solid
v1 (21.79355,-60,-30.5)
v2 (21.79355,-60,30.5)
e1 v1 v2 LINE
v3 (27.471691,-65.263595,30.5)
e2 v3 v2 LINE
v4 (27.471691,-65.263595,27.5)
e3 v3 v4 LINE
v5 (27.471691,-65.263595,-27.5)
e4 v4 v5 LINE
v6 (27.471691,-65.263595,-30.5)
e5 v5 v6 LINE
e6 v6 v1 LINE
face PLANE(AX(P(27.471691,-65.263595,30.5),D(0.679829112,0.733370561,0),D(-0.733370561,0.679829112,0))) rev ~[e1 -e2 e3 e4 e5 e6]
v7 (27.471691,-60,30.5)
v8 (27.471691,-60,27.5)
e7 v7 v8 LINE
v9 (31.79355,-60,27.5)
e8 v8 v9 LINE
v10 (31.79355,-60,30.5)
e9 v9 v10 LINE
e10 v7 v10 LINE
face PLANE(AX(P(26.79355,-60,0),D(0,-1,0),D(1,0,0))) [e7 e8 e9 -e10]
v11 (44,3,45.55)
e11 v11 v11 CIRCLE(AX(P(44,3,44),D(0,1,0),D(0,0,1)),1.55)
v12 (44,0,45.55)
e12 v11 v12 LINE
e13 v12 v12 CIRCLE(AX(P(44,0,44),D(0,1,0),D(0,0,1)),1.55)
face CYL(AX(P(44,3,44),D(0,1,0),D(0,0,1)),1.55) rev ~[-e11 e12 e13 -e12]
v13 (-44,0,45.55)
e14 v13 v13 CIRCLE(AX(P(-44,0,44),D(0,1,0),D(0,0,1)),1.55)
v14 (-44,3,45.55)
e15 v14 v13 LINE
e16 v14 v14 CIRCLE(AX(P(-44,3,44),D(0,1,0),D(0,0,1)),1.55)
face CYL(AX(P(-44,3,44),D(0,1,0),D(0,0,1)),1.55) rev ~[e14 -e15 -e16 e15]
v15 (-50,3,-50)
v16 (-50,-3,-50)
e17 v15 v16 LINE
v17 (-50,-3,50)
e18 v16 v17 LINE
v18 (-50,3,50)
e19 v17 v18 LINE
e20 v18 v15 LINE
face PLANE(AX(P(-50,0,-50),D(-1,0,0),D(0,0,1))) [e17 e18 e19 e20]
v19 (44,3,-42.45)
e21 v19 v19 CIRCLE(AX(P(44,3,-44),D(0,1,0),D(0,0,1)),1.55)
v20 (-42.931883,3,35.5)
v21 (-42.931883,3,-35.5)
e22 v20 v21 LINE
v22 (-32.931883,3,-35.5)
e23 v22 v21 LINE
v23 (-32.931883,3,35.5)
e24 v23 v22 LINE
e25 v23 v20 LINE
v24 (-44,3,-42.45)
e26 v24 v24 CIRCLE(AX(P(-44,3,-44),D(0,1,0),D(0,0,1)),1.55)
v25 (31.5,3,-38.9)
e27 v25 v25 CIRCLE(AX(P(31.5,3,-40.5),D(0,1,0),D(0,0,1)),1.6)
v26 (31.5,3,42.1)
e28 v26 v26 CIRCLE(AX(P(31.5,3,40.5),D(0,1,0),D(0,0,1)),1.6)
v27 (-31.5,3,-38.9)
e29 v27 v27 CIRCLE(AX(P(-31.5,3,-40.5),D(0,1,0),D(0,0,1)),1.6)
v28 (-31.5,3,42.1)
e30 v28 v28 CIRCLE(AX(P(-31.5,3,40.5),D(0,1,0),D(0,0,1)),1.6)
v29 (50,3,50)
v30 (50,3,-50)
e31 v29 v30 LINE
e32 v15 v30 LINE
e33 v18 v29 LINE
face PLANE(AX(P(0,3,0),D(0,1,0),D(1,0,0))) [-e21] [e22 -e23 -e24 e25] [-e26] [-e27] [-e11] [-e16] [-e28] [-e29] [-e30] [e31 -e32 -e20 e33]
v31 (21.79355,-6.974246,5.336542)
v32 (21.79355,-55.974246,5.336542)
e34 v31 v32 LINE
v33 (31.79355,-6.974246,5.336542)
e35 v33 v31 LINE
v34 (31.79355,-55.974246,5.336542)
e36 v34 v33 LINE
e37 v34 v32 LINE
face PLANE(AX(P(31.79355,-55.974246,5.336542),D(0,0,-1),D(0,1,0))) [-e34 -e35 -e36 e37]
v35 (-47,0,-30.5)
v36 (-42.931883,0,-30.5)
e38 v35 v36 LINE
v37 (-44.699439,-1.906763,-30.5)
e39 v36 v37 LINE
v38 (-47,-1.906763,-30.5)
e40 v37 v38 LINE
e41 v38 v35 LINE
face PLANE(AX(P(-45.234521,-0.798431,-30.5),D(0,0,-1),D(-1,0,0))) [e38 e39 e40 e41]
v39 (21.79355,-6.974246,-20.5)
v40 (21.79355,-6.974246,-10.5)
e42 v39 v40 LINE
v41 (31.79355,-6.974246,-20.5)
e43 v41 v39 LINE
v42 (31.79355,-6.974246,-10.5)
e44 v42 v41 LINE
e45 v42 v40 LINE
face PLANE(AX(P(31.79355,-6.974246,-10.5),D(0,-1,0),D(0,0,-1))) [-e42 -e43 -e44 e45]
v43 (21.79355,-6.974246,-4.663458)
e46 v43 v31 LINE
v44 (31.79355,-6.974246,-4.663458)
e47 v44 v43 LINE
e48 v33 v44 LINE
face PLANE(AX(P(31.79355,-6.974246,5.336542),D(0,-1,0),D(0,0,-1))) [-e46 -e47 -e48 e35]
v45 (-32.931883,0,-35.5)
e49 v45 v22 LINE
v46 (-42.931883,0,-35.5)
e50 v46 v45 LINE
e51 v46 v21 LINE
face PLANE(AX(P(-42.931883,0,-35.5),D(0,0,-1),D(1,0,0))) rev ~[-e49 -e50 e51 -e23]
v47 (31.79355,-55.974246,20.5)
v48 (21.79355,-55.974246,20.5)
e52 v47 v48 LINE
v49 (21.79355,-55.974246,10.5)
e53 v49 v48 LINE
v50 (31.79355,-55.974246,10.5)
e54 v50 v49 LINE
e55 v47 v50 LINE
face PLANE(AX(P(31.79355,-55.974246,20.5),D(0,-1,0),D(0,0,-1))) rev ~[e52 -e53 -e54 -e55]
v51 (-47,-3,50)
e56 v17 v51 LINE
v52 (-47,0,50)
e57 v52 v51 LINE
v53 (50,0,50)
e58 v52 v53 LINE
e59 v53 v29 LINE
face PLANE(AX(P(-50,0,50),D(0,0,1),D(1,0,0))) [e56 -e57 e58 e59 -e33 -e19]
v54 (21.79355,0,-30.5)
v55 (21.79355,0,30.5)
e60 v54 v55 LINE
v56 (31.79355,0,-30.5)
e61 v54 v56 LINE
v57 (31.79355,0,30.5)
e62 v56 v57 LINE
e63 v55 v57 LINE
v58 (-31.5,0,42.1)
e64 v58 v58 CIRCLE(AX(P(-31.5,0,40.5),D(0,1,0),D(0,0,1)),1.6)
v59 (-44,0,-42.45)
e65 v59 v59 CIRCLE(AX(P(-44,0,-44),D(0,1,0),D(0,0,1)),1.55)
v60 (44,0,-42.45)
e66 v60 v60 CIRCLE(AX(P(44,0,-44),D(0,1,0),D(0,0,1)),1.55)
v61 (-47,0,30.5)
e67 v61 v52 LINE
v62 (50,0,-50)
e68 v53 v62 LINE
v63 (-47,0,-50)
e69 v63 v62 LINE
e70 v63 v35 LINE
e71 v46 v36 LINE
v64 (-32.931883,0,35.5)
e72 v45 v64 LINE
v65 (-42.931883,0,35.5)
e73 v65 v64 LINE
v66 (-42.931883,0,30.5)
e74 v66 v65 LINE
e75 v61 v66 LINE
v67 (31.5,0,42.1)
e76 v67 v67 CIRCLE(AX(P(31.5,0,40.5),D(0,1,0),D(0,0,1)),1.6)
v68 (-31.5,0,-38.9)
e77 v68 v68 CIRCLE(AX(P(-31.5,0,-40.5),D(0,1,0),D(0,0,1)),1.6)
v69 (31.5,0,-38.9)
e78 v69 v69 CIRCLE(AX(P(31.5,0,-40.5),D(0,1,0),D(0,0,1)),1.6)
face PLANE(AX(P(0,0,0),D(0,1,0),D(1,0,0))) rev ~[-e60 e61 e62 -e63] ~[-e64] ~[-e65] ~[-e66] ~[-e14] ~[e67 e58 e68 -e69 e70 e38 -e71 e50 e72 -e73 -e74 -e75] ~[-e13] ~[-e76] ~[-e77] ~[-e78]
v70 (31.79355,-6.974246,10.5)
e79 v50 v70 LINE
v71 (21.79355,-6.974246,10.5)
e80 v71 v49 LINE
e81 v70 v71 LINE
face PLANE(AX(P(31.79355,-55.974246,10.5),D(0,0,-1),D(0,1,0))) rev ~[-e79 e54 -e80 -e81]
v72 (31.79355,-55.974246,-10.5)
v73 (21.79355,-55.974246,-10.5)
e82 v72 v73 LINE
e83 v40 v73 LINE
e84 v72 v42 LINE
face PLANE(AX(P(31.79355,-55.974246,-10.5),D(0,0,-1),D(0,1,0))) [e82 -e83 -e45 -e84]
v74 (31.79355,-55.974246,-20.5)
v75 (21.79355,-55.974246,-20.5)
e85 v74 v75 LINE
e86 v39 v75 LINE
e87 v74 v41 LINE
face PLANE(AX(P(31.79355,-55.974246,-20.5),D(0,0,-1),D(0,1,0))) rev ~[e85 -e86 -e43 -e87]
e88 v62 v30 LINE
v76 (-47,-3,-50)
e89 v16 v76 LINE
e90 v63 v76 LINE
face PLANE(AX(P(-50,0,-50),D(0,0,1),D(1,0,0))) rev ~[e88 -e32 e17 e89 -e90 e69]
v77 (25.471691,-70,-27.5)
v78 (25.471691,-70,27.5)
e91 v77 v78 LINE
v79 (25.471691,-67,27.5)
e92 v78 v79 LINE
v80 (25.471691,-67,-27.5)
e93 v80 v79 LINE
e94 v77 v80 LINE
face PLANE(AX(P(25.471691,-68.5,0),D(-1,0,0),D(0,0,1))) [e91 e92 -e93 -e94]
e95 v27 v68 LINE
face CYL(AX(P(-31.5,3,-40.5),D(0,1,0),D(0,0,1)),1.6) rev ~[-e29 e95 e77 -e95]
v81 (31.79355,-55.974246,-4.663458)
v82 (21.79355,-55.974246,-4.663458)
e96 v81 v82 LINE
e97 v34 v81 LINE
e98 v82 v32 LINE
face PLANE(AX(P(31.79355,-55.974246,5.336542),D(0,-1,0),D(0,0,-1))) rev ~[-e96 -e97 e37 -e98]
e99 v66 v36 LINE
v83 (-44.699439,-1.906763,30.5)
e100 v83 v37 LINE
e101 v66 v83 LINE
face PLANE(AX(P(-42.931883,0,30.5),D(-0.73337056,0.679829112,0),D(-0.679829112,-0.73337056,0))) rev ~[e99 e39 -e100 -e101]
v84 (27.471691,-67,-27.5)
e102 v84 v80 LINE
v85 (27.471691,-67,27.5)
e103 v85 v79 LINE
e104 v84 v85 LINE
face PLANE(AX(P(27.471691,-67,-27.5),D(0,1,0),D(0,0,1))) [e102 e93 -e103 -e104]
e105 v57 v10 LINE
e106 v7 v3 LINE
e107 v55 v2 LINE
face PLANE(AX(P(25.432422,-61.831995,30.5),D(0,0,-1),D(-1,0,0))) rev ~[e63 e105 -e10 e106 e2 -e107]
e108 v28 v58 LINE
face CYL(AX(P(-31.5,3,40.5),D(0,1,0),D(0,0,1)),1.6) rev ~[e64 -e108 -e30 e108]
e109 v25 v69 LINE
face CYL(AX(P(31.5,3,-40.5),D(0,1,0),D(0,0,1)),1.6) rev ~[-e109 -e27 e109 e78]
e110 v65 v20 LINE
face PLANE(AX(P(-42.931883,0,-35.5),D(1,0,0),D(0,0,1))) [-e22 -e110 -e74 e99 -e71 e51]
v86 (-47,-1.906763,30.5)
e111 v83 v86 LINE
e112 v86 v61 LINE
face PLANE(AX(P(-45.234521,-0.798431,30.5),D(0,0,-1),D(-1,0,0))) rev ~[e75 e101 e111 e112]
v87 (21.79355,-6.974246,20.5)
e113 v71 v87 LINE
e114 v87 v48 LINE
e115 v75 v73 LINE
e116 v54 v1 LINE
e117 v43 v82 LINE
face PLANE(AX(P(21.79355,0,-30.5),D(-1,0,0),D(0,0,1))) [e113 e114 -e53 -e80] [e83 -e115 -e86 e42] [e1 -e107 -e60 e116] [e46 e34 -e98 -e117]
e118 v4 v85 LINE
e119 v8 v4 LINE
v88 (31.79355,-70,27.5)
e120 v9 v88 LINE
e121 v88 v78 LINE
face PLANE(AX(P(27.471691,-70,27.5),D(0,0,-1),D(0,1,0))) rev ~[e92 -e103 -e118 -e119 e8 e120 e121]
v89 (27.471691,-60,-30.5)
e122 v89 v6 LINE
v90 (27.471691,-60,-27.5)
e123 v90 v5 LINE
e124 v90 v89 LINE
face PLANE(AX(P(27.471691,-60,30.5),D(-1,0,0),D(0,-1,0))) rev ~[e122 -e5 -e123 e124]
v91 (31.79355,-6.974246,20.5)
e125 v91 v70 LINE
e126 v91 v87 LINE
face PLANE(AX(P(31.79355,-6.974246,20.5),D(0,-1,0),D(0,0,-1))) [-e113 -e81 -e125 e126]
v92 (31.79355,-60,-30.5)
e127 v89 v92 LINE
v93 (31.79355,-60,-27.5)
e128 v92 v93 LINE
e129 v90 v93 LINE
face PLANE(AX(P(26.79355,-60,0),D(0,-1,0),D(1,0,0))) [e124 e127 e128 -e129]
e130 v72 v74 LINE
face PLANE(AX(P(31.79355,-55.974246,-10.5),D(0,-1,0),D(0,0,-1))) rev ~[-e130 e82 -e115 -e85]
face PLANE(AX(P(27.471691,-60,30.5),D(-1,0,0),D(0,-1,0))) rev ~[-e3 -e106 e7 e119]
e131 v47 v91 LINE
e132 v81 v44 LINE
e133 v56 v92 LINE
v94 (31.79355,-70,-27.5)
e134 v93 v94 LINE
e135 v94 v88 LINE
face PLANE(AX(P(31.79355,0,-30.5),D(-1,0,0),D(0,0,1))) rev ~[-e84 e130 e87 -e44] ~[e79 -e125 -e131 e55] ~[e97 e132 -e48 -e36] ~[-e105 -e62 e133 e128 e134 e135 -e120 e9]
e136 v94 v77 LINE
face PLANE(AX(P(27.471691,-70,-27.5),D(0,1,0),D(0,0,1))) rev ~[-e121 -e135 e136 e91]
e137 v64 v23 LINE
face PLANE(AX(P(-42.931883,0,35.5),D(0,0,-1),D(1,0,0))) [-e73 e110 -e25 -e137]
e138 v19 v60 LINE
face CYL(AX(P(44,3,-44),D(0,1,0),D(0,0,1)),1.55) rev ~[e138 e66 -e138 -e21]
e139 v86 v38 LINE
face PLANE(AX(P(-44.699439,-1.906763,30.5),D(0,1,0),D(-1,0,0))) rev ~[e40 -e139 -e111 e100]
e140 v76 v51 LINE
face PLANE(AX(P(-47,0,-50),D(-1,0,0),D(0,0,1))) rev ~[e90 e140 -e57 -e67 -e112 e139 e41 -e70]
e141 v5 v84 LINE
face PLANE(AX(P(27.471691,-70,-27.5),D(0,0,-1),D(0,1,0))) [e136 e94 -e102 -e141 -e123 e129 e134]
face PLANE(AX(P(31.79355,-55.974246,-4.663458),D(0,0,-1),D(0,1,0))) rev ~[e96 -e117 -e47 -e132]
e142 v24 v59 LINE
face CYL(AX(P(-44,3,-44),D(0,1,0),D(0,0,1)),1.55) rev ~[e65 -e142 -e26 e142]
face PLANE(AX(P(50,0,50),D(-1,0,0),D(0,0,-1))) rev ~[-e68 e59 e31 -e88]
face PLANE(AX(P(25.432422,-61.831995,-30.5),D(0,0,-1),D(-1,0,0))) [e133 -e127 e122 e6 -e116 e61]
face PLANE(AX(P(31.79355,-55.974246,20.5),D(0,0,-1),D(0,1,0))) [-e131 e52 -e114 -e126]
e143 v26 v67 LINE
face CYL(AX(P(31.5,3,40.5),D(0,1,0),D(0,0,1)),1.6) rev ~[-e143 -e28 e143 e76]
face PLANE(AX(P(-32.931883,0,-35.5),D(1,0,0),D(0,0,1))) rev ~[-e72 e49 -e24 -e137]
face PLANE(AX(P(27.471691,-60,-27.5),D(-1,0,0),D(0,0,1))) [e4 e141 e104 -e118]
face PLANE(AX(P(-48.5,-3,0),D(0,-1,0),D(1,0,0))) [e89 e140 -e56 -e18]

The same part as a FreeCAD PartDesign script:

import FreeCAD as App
import Part
import Sketcher

V = App.Vector


def add_polygon(sketch, points):
    """Adds a closed chain of lines whose ends are joined by coincident constraints."""
    first, n = sketch.GeometryCount, len(points)
    for a, b in zip(points, points[1:] + points[:1]):
        sketch.addGeometry(Part.LineSegment(App.Vector(*a, 0), App.Vector(*b, 0)), False)
    for i in range(n):
        sketch.addConstraint(Sketcher.Constraint("Coincident", first + i, 2, first + (i + 1) % n, 1))

doc = App.newDocument("Part")
body = doc.addObject("PartDesign::Body", "Body")

# Sketch on XZ plane
sketch1 = doc.addObject("Sketcher::SketchObject", "Sketch")
body.addObject(sketch1)
sketch1.AttachmentSupport = (doc.XZ_Plane, [""])
sketch1.MapMode = "FlatFace"
add_polygon(sketch1, [(-50, -50), (-50, 50), (50, 50), (50, -50)])  # lines 0-3
sketch1.addConstraint([
    Sketcher.Constraint("Vertical", 0),
    Sketcher.Constraint("Horizontal", 1),
    Sketcher.Constraint("Vertical", 2),
    Sketcher.Constraint("Horizontal", 3),
    Sketcher.Constraint("Symmetric", 0, 2, 2, 2, -1, 1),
    Sketcher.Constraint("Equal", 3, 0),
    Sketcher.Constraint("DistanceX", 1, 1, 1, 2, 100.0),
])
pad1 = doc.addObject("PartDesign::Pad", "Pad")
body.addObject(pad1)
pad1.Profile = sketch1
pad1.Length = 3
pad1.Reversed = True

# Sketch on XZ plane
sketch2 = doc.addObject("Sketcher::SketchObject", "Sketch001")
body.addObject(sketch2)
sketch2.AttachmentSupport = (doc.XZ_Plane, [""])
sketch2.MapMode = "FlatFace"
sketch2.AttachmentOffset = App.Placement(V(0, 0, -3), App.Rotation())
sketch2.addGeometry([
    Part.Circle(V(-44, -44, 0), V(0, 0, 1), 1.6),
    Part.Circle(V(44, -44, 0), V(0, 0, 1), 1.6),
    Part.Circle(V(44, 44, 0), V(0, 0, 1), 1.6),
    Part.Circle(V(-44, 44, 0), V(0, 0, 1), 1.6),
], False)
sketch2.addConstraint([
    Sketcher.Constraint("Equal", 0, 1),
    Sketcher.Constraint("Equal", 1, 2),
    Sketcher.Constraint("Equal", 2, 3),
    Sketcher.Constraint("Symmetric", 0, 3, 2, 3, -1, 1),
    Sketcher.Constraint("Symmetric", 1, 3, 3, 3, -1, 1),
    Sketcher.Constraint("Symmetric", 0, 3, 1, 3, -2),
    Sketcher.Constraint("Diameter", 0, 3.1),
    Sketcher.Constraint("DistanceX", 0, 3, -1, 1, 44.0),
    Sketcher.Constraint("DistanceY", 0, 3, -1, 1, 44.0),
])
pocket1 = doc.addObject("PartDesign::Pocket", "Pocket")
body.addObject(pocket1)
pocket1.Profile = sketch2
pocket1.Length = 10
pocket1.Reversed = True

# Sketch on XZ plane
sketch3 = doc.addObject("Sketcher::SketchObject", "Sketch002")
body.addObject(sketch3)
sketch3.AttachmentSupport = (doc.XZ_Plane, [""])
sketch3.MapMode = "FlatFace"
sketch3.AttachmentOffset = App.Placement(V(0, 0, -3), App.Rotation())
sketch3.addGeometry([
    Part.Circle(V(-31.5, -40.5, 0), V(0, 0, 1), 1.6),
    Part.Circle(V(31.5, -40.5, 0), V(0, 0, 1), 1.6),
    Part.Circle(V(-31.5, 40.5, 0), V(0, 0, 1), 1.6),
    Part.Circle(V(31.5, 40.5, 0), V(0, 0, 1), 1.6),
], False)
sketch3.addConstraint([
    Sketcher.Constraint("Equal", 0, 1),
    Sketcher.Constraint("Equal", 1, 2),
    Sketcher.Constraint("Equal", 2, 3),
    Sketcher.Constraint("Symmetric", 1, 3, 2, 3, -1, 1),
    Sketcher.Constraint("Symmetric", 0, 3, 3, 3, -1, 1),
    Sketcher.Constraint("Symmetric", 0, 3, 1, 3, -2),
    Sketcher.Constraint("Diameter", 0, 3.2),
    Sketcher.Constraint("DistanceX", 0, 3, 1, 3, 63.0),
    Sketcher.Constraint("DistanceY", 0, 3, 2, 3, 81.0),
])
pocket2 = doc.addObject("PartDesign::Pocket", "Pocket001")
body.addObject(pocket2)
pocket2.Profile = sketch3
pocket2.Length = 10
pocket2.Reversed = True

# Sketch on XZ plane
sketch4 = doc.addObject("Sketcher::SketchObject", "Sketch003")
body.addObject(sketch4)
sketch4.AttachmentSupport = (doc.XZ_Plane, [""])
sketch4.MapMode = "FlatFace"
add_polygon(sketch4, [(-50, 50), (-50, -50), (-47, -50), (-47, 50)])  # lines 0-3
sketch4.addConstraint([
    Sketcher.Constraint("Vertical", 0),
    Sketcher.Constraint("Horizontal", 1),
    Sketcher.Constraint("Vertical", 2),
    Sketcher.Constraint("Horizontal", 3),
    Sketcher.Constraint("DistanceX", 1, 1, 1, 2, 3.0),
    Sketcher.Constraint("DistanceY", 0, 2, 0, 1, 100.0),
    Sketcher.Constraint("DistanceX", 0, 2, -1, 1, 50.0),
    Sketcher.Constraint("DistanceY", 0, 2, -1, 1, 50.0),
])
pad2 = doc.addObject("PartDesign::Pad", "Pad001")
body.addObject(pad2)
pad2.Profile = sketch4
pad2.Length = 3

# Sketch on XZ plane
sketch5 = doc.addObject("Sketcher::SketchObject", "Sketch004")
body.addObject(sketch5)
sketch5.AttachmentSupport = (doc.XZ_Plane, [""])
sketch5.MapMode = "FlatFace"
add_polygon(sketch5, [(22, 30), (22, -30), (32, -30), (32, 30)])  # lines 0-3
sketch5.addConstraint([
    Sketcher.Constraint("Vertical", 0),
    Sketcher.Constraint("Horizontal", 1),
    Sketcher.Constraint("Vertical", 2),
    Sketcher.Constraint("Horizontal", 3),
    Sketcher.Constraint("DistanceX", 1, 1, 1, 2, 10.0),
    Sketcher.Constraint("DistanceY", 0, 2, 0, 1, 61.0),
    Sketcher.Constraint("DistanceY", 0, 2, -1, 1, 30.5),
    Sketcher.Constraint("DistanceX", -1, 1, 0, 2, 21.79355),
])
pad3 = doc.addObject("PartDesign::Pad", "Pad002")
body.addObject(pad3)
pad3.Profile = sketch5
pad3.Length = 60

# Sketch on XZ plane
sketch6 = doc.addObject("Sketcher::SketchObject", "Sketch005")
body.addObject(sketch6)
sketch6.AttachmentSupport = (doc.XZ_Plane, [""])
sketch6.MapMode = "FlatFace"
sketch6.AttachmentOffset = App.Placement(V(0, 0, 60), App.Rotation())
add_polygon(sketch6, [(27.5, 27.5), (27.5, -27.5), (31.8, -27.5), (31.8, 27.5)])  # lines 0-3
sketch6.addConstraint([
    Sketcher.Constraint("Vertical", 0),
    Sketcher.Constraint("Horizontal", 1),
    Sketcher.Constraint("Vertical", 2),
    Sketcher.Constraint("Horizontal", 3),
    Sketcher.Constraint("DistanceY", 0, 2, 0, 1, 55.0),
    Sketcher.Constraint("DistanceY", 0, 2, -1, 1, 27.5),
    Sketcher.Constraint("DistanceX", 1, 1, 1, 2, 4.321859),
    Sketcher.Constraint("DistanceX", -1, 1, 0, 2, 27.471691),
])
pad4 = doc.addObject("PartDesign::Pad", "Pad003")
body.addObject(pad4)
pad4.Profile = sketch6
pad4.Length = 10

# Sketch on YZ plane
sketch7 = doc.addObject("Sketcher::SketchObject", "Sketch006")
body.addObject(sketch7)
sketch7.AttachmentSupport = (doc.YZ_Plane, [""])
sketch7.MapMode = "FlatFace"
sketch7.AttachmentOffset = App.Placement(V(0, 0, 27.471691), App.Rotation())
add_polygon(sketch7, [(-67, -27.5), (-70, -27.5), (-70, 27.5), (-67, 27.5)])  # lines 0-3
sketch7.addConstraint([
    Sketcher.Constraint("Horizontal", 0),
    Sketcher.Constraint("Vertical", 1),
    Sketcher.Constraint("Horizontal", 2),
    Sketcher.Constraint("Vertical", 3),
    Sketcher.Constraint("DistanceX", 0, 2, 0, 1, 3.0),
    Sketcher.Constraint("DistanceY", 1, 1, 1, 2, 55.0),
    Sketcher.Constraint("DistanceX", 0, 2, -1, 1, 70.0),
    Sketcher.Constraint("DistanceY", 0, 2, -1, 1, 27.5),
])
pad5 = doc.addObject("PartDesign::Pad", "Pad004")
body.addObject(pad5)
pad5.Profile = sketch7
pad5.Length = 2
pad5.Reversed = True

# Sketch on XY plane
sketch8 = doc.addObject("Sketcher::SketchObject", "Sketch007")
body.addObject(sketch8)
sketch8.AttachmentSupport = (doc.XY_Plane, [""])
sketch8.MapMode = "FlatFace"
sketch8.AttachmentOffset = App.Placement(V(0, 0, 30.5), App.Rotation())
add_polygon(sketch8, [(27.5, -60), (21.8, -60), (27.5, -65.3)])  # lines 0-2
add_polygon(sketch8, [(-47, -1.9), (-44.7, -1.9), (-42.9, 0), (-47, 0)])  # lines 3-6
sketch8.addConstraint([
    Sketcher.Constraint("Horizontal", 0),
    Sketcher.Constraint("Vertical", 2),
    Sketcher.Constraint("Horizontal", 3),
    Sketcher.Constraint("Horizontal", 5),
    Sketcher.Constraint("Vertical", 6),
    Sketcher.Constraint("PointOnObject", 4, 2, -1),
    Sketcher.Constraint("Perpendicular", 1, 4),
    Sketcher.Constraint("DistanceY", 0, 2, -1, 1, 60.0),
    Sketcher.Constraint("DistanceX", 5, 2, -1, 1, 47.0),
    Sketcher.Constraint("Distance", 4, 2.6),
    Sketcher.Constraint("DistanceX", 0, 2, 0, 1, 5.678141),
    Sketcher.Constraint("DistanceX", 3, 1, 3, 2, 2.300561),
    Sketcher.Constraint("DistanceX", 5, 2, 5, 1, 4.068117),
    Sketcher.Constraint("DistanceX", -1, 1, 0, 2, 21.79355),
])
pad6 = doc.addObject("PartDesign::Pad", "Pad005")
body.addObject(pad6)
pad6.Profile = sketch8
pad6.Length = 61
pad6.Reversed = True

# Sketch on XZ plane
sketch9 = doc.addObject("Sketcher::SketchObject", "Sketch008")
body.addObject(sketch9)
sketch9.AttachmentSupport = (doc.XZ_Plane, [""])
sketch9.MapMode = "FlatFace"
add_polygon(sketch9, [(-43, 36), (-43, -36), (-33, -36), (-33, 36)])  # lines 0-3
sketch9.addConstraint([
    Sketcher.Constraint("Vertical", 0),
    Sketcher.Constraint("Horizontal", 1),
    Sketcher.Constraint("Vertical", 2),
    Sketcher.Constraint("Horizontal", 3),
    Sketcher.Constraint("DistanceX", 1, 1, 1, 2, 10.0),
    Sketcher.Constraint("DistanceY", 0, 2, 0, 1, 71.0),
    Sketcher.Constraint("DistanceY", 0, 2, -1, 1, 35.5),
    Sketcher.Constraint("DistanceX", 0, 2, -1, 1, 42.931883),
])
pocket3 = doc.addObject("PartDesign::Pocket", "Pocket002")
body.addObject(pocket3)
pocket3.Profile = sketch9
pocket3.Length = 61

# Sketch on YZ plane
sketch10 = doc.addObject("Sketcher::SketchObject", "Sketch009")
body.addObject(sketch10)
sketch10.AttachmentSupport = (doc.YZ_Plane, [""])
sketch10.MapMode = "FlatFace"
sketch10.AttachmentOffset = App.Placement(V(0, 0, 31.79355), App.Rotation())
add_polygon(sketch10, [(-7, 20), (-56, 20), (-56, 10), (-7, 10)])  # lines 0-3
add_polygon(sketch10, [(-7, 5), (-56, 5), (-56, -5), (-7, -5)])  # lines 4-7
add_polygon(sketch10, [(-7, -10), (-56, -10), (-56, -20), (-7, -20)])  # lines 8-11
sketch10.addConstraint([
    Sketcher.Constraint("Horizontal", 0),
    Sketcher.Constraint("Vertical", 1),
    Sketcher.Constraint("Horizontal", 2),
    Sketcher.Constraint("Vertical", 3),
    Sketcher.Constraint("Horizontal", 4),
    Sketcher.Constraint("Vertical", 5),
    Sketcher.Constraint("Horizontal", 6),
    Sketcher.Constraint("Vertical", 7),
    Sketcher.Constraint("Horizontal", 8),
    Sketcher.Constraint("Vertical", 9),
    Sketcher.Constraint("Horizontal", 10),
    Sketcher.Constraint("Vertical", 11),
    Sketcher.Constraint("Symmetric", 1, 2, 8, 2, -1),
    Sketcher.Constraint("Symmetric", 3, 2, 10, 2, -1),
    Sketcher.Constraint("Vertical", 1, 2, 4, 2),
    Sketcher.Constraint("Vertical", 3, 2, 6, 2),
    Sketcher.Constraint("Equal", 3, 5),
    Sketcher.Constraint("DistanceX", 0, 2, 0, 1, 49.0),
    Sketcher.Constraint("DistanceY", 1, 2, 1, 1, 10.0),
    Sketcher.Constraint("DistanceY", 8, 2, 1, 2, 21.0),
    Sketcher.Constraint("DistanceX", 0, 2, -1, 1, 55.974246),
    Sketcher.Constraint("DistanceY", -1, 1, 4, 2, 5.336542),
])
pocket4 = doc.addObject("PartDesign::Pocket", "Pocket003")
body.addObject(pocket4)
pocket4.Profile = sketch10
pocket4.Length = 61

doc.recompute()
